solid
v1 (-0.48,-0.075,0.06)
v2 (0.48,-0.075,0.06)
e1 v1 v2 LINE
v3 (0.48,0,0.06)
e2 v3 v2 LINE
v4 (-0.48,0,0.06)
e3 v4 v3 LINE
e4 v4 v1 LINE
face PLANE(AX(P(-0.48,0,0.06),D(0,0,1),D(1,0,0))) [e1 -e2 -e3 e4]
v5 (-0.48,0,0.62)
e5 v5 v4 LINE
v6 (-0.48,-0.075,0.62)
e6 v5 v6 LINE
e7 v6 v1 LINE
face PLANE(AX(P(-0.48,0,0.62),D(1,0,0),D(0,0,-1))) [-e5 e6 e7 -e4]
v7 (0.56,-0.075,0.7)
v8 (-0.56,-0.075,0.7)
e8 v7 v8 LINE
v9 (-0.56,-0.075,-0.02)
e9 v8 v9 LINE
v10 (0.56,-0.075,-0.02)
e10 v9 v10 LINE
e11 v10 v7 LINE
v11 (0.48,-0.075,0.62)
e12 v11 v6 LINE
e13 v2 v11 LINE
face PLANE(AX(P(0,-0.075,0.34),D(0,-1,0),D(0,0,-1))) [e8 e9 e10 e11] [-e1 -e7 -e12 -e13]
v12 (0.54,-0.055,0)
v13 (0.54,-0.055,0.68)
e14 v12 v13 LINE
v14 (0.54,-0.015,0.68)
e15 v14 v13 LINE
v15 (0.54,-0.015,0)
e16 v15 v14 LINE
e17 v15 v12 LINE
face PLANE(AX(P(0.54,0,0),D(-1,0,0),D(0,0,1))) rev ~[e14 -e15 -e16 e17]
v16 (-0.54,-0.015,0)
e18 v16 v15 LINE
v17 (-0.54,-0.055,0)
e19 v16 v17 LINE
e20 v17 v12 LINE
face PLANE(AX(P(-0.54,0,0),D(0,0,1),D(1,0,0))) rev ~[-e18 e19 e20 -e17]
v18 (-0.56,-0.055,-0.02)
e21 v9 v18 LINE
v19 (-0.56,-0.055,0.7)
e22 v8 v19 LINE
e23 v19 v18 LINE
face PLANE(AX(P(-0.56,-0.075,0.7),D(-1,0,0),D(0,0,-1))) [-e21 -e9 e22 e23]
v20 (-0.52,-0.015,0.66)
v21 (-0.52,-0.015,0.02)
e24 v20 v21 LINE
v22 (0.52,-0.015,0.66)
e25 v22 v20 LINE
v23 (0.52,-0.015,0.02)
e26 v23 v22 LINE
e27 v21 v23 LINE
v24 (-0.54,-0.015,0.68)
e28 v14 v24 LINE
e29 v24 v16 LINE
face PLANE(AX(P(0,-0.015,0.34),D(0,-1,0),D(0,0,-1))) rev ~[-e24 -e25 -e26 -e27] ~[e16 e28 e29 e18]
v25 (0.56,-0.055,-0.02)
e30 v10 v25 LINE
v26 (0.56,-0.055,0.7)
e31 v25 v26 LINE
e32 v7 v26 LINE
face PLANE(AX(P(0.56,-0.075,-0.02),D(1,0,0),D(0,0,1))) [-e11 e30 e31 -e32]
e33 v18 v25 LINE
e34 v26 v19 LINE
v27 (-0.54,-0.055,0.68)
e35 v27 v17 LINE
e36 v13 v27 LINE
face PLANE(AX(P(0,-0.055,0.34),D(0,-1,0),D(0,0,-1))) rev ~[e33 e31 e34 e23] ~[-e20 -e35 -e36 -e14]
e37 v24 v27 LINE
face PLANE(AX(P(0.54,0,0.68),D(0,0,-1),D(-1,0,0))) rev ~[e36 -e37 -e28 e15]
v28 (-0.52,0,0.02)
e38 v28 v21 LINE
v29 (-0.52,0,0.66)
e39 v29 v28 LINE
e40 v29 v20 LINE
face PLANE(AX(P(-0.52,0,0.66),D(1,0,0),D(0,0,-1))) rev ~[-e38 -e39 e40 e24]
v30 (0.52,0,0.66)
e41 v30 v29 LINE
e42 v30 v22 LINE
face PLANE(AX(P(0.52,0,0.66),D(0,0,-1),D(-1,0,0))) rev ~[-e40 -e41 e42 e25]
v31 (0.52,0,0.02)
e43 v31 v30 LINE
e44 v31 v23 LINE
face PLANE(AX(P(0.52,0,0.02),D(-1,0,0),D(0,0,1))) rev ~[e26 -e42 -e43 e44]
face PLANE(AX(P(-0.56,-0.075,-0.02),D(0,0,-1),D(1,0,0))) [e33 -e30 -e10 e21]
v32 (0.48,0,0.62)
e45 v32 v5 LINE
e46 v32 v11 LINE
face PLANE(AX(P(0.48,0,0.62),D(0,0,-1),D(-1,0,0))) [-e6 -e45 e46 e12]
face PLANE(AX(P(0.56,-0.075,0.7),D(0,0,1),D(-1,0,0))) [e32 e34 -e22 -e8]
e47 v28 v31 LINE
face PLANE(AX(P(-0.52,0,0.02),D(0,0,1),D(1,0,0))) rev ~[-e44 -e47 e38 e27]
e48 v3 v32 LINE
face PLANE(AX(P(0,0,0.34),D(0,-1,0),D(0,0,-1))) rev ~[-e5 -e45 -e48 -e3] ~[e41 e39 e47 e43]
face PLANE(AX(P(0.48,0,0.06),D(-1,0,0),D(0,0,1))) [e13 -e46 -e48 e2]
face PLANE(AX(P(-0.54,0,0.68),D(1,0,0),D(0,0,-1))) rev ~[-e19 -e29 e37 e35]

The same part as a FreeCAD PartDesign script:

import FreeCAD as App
import Part
import Sketcher
from FreeCAD import Vector
Q = App.Units.Quantity


def add_polygon(sketch, points):
    """Adds a closed chain of lines whose ends are joined by coincident constraints."""
    first, n = sketch.GeometryCount, len(points)
    for a, b in zip(points, points[1:] + points[:1]):
        sketch.addGeometry(Part.LineSegment(App.Vector(*a, 0), App.Vector(*b, 0)), False)
    for i in range(n):
        sketch.addConstraint(Sketcher.Constraint("Coincident", first + i, 2, first + (i + 1) % n, 1))

doc = App.newDocument("Part")
params = doc.addObject("Spreadsheet::Sheet", "Params")
for row, (alias, value) in enumerate([
    ("sketch1_height", "0.68 mm"),
    ("pad1_length", "0.075 mm"),
    ("sketch2_width", "0.96 mm"),
    ("sketch2_height", "0.56 mm"),
    ("sketch3_width", "1.08 mm"),
    ("sketch3_width2", "1.04 mm"),
    ("sketch3_height", "0.68 mm"),
    ("sketch3_height2", "0.64 mm"),
    ("pocket2_length", "0.015 mm"),
    ("sketch4_width", "1.12 mm"),
    ("sketch4_width2", "1.08 mm"),
    ("sketch4_height", "0.72 mm"),
    ("sketch4_height2", "0.68 mm"),
    ("pad2_length", "0.02 mm"),
], start=1):
    params.set(f"A{row}", alias)
    params.set(f"B{row}", "=" + value)
    params.setAlias(f"B{row}", alias)

body = doc.addObject("PartDesign::Body", "Body")

# Sketch on XZ plane
sketch1 = body.newObject("Sketcher::SketchObject", "Sketch")
sketch1.AttachmentSupport = (doc.getObject("XZ_Plane"), [""])
sketch1.MapMode = "FlatFace"
add_polygon(sketch1, [(-0.5, 0.7), (-0.5, 0), (0.5, 0), (0.5, 0.7)])  # lines 0-3
sketch1.addConstraint([
    Sketcher.Constraint("Vertical", 0),
    Sketcher.Constraint("Horizontal", 1),
    Sketcher.Constraint("Vertical", 2),
    Sketcher.Constraint("Horizontal", 3),
    Sketcher.Constraint("Symmetric", 0, 2, 1, 2, -1, 1),
    Sketcher.Constraint("DistanceX", 0, 2, -1, 1, Q("0.54 mm")),
    Sketcher.Constraint("DistanceY", 0, 2, 0, 1, Q("0.68 mm")),
])
sketch1.setExpression("Constraints[10]", "Params.sketch1_height")
pad1 = body.newObject("PartDesign::Pad", "Pad")
pad1.Profile = sketch1
pad1.setExpression("Length", "Params.pad1_length")

# Sketch on XZ plane
sketch2 = body.newObject("Sketcher::SketchObject", "Sketch001")
sketch2.AttachmentSupport = (doc.getObject("XZ_Plane"), [""])
sketch2.MapMode = "FlatFace"
add_polygon(sketch2, [(-0.5, 0.6), (0.5, 0.6), (0.5, 0.1), (-0.5, 0.1)])  # lines 0-3
sketch2.addConstraint([
    Sketcher.Constraint("Horizontal", 0),
    Sketcher.Constraint("Vertical", 1),
    Sketcher.Constraint("Horizontal", 2),
    Sketcher.Constraint("Vertical", 3),
    Sketcher.Constraint("DistanceX", 0, 1, 0, 2, Q("0.96 mm")),
    Sketcher.Constraint("DistanceY", 1, 2, 1, 1, Q("0.56 mm")),
    Sketcher.Constraint("DistanceX", -1, 1, 0, 2, Q("0.48 mm")),
    Sketcher.Constraint("DistanceY", -1, 1, 0, 2, Q("0.62 mm")),
])
sketch2.setExpression("Constraints[8]", "Params.sketch2_width")
sketch2.setExpression("Constraints[9]", "Params.sketch2_height")
pocket1 = body.newObject("PartDesign::Pocket", "Pocket")
pocket1.Profile = sketch2
pocket1.Type = "UpToFirst"
pocket1.Reversed = True

# Sketch on XZ plane
sketch3 = body.newObject("Sketcher::SketchObject", "Sketch002")
sketch3.AttachmentSupport = (doc.getObject("XZ_Plane"), [""])
sketch3.MapMode = "FlatFace"
add_polygon(sketch3, [(0.5, 0.7), (0.5, 0), (-0.5, 0), (-0.5, 0.7)])  # lines 0-3
add_polygon(sketch3, [(-0.5, 0), (0.5, 0), (0.5, 0.7), (-0.5, 0.7)])  # lines 4-7
sketch3.addConstraint([
    Sketcher.Constraint("Vertical", 0),
    Sketcher.Constraint("Horizontal", 1),
    Sketcher.Constraint("Vertical", 2),
    Sketcher.Constraint("Horizontal", 3),
    Sketcher.Constraint("Horizontal", 4),
    Sketcher.Constraint("Vertical", 5),
    Sketcher.Constraint("Horizontal", 6),
    Sketcher.Constraint("Vertical", 7),
    Sketcher.Constraint("Symmetric", 0, 2, 1, 2, -1, 1),
    Sketcher.Constraint("DistanceX", 1, 2, 1, 1, Q("1.08 mm")),
    Sketcher.Constraint("DistanceX", 4, 1, 4, 2, Q("1.04 mm")),
    Sketcher.Constraint("DistanceY", 0, 2, 0, 1, Q("0.68 mm")),
    Sketcher.Constraint("DistanceY", 5, 1, 5, 2, Q("0.64 mm")),
    Sketcher.Constraint("DistanceX", -1, 1, 4, 2, Q("0.52 mm")),
    Sketcher.Constraint("DistanceY", -1, 1, 4, 2, Q("0.02 mm")),
])
sketch3.setExpression("Constraints[17]", "Params.sketch3_width")
sketch3.setExpression("Constraints[18]", "Params.sketch3_width2")
sketch3.setExpression("Constraints[19]", "Params.sketch3_height")
sketch3.setExpression("Constraints[20]", "Params.sketch3_height2")
pocket2 = body.newObject("PartDesign::Pocket", "Pocket001")
pocket2.Profile = sketch3
pocket2.setExpression("Length", "Params.pocket2_length")
pocket2.Reversed = True

# Sketch on XZ plane
sketch4 = body.newObject("Sketcher::SketchObject", "Sketch003")
sketch4.AttachmentSupport = (doc.getObject("XZ_Plane"), [""])
sketch4.MapMode = "FlatFace"
sketch4.AttachmentOffset = App.Placement(Vector(0, 0, 0.075), App.Rotation())
add_polygon(sketch4, [(0.6, 0.7), (-0.6, 0.7), (-0.6, 0), (0.6, 0)])  # lines 0-3
add_polygon(sketch4, [(-0.5, 0.7), (0.5, 0.7), (0.5, 0), (-0.5, 0)])  # lines 4-7
sketch4.addConstraint([
    Sketcher.Constraint("Horizontal", 0),
    Sketcher.Constraint("Vertical", 1),
    Sketcher.Constraint("Horizontal", 2),
    Sketcher.Constraint("Vertical", 3),
    Sketcher.Constraint("Horizontal", 4),
    Sketcher.Constraint("Vertical", 5),
    Sketcher.Constraint("Horizontal", 6),
    Sketcher.Constraint("Vertical", 7),
    Sketcher.Constraint("Symmetric", 5, 2, 6, 2, -1, 1),
    Sketcher.Constraint("DistanceX", 0, 2, 0, 1, Q("1.12 mm")),
    Sketcher.Constraint("DistanceX", 4, 1, 4, 2, Q("1.08 mm")),
    Sketcher.Constraint("DistanceY", 1, 2, 1, 1, Q("0.72 mm")),
    Sketcher.Constraint("DistanceY", 5, 2, 5, 1, Q("0.68 mm")),
    Sketcher.Constraint("DistanceY", -1, 1, 0, 2, Q("0.7 mm")),
    Sketcher.Constraint("DistanceX", 0, 2, 4, 2, Q("1.1 mm")),
])
sketch4.setExpression("Constraints[17]", "Params.sketch4_width")
sketch4.setExpression("Constraints[18]", "Params.sketch4_width2")
sketch4.setExpression("Constraints[19]", "Params.sketch4_height")
sketch4.setExpression("Constraints[20]", "Params.sketch4_height2")
pad2 = body.newObject("PartDesign::Pad", "Pad001")
pad2.Profile = sketch4
pad2.setExpression("Length", "Params.pad2_length")
pad2.Reversed = True

doc.recompute()
